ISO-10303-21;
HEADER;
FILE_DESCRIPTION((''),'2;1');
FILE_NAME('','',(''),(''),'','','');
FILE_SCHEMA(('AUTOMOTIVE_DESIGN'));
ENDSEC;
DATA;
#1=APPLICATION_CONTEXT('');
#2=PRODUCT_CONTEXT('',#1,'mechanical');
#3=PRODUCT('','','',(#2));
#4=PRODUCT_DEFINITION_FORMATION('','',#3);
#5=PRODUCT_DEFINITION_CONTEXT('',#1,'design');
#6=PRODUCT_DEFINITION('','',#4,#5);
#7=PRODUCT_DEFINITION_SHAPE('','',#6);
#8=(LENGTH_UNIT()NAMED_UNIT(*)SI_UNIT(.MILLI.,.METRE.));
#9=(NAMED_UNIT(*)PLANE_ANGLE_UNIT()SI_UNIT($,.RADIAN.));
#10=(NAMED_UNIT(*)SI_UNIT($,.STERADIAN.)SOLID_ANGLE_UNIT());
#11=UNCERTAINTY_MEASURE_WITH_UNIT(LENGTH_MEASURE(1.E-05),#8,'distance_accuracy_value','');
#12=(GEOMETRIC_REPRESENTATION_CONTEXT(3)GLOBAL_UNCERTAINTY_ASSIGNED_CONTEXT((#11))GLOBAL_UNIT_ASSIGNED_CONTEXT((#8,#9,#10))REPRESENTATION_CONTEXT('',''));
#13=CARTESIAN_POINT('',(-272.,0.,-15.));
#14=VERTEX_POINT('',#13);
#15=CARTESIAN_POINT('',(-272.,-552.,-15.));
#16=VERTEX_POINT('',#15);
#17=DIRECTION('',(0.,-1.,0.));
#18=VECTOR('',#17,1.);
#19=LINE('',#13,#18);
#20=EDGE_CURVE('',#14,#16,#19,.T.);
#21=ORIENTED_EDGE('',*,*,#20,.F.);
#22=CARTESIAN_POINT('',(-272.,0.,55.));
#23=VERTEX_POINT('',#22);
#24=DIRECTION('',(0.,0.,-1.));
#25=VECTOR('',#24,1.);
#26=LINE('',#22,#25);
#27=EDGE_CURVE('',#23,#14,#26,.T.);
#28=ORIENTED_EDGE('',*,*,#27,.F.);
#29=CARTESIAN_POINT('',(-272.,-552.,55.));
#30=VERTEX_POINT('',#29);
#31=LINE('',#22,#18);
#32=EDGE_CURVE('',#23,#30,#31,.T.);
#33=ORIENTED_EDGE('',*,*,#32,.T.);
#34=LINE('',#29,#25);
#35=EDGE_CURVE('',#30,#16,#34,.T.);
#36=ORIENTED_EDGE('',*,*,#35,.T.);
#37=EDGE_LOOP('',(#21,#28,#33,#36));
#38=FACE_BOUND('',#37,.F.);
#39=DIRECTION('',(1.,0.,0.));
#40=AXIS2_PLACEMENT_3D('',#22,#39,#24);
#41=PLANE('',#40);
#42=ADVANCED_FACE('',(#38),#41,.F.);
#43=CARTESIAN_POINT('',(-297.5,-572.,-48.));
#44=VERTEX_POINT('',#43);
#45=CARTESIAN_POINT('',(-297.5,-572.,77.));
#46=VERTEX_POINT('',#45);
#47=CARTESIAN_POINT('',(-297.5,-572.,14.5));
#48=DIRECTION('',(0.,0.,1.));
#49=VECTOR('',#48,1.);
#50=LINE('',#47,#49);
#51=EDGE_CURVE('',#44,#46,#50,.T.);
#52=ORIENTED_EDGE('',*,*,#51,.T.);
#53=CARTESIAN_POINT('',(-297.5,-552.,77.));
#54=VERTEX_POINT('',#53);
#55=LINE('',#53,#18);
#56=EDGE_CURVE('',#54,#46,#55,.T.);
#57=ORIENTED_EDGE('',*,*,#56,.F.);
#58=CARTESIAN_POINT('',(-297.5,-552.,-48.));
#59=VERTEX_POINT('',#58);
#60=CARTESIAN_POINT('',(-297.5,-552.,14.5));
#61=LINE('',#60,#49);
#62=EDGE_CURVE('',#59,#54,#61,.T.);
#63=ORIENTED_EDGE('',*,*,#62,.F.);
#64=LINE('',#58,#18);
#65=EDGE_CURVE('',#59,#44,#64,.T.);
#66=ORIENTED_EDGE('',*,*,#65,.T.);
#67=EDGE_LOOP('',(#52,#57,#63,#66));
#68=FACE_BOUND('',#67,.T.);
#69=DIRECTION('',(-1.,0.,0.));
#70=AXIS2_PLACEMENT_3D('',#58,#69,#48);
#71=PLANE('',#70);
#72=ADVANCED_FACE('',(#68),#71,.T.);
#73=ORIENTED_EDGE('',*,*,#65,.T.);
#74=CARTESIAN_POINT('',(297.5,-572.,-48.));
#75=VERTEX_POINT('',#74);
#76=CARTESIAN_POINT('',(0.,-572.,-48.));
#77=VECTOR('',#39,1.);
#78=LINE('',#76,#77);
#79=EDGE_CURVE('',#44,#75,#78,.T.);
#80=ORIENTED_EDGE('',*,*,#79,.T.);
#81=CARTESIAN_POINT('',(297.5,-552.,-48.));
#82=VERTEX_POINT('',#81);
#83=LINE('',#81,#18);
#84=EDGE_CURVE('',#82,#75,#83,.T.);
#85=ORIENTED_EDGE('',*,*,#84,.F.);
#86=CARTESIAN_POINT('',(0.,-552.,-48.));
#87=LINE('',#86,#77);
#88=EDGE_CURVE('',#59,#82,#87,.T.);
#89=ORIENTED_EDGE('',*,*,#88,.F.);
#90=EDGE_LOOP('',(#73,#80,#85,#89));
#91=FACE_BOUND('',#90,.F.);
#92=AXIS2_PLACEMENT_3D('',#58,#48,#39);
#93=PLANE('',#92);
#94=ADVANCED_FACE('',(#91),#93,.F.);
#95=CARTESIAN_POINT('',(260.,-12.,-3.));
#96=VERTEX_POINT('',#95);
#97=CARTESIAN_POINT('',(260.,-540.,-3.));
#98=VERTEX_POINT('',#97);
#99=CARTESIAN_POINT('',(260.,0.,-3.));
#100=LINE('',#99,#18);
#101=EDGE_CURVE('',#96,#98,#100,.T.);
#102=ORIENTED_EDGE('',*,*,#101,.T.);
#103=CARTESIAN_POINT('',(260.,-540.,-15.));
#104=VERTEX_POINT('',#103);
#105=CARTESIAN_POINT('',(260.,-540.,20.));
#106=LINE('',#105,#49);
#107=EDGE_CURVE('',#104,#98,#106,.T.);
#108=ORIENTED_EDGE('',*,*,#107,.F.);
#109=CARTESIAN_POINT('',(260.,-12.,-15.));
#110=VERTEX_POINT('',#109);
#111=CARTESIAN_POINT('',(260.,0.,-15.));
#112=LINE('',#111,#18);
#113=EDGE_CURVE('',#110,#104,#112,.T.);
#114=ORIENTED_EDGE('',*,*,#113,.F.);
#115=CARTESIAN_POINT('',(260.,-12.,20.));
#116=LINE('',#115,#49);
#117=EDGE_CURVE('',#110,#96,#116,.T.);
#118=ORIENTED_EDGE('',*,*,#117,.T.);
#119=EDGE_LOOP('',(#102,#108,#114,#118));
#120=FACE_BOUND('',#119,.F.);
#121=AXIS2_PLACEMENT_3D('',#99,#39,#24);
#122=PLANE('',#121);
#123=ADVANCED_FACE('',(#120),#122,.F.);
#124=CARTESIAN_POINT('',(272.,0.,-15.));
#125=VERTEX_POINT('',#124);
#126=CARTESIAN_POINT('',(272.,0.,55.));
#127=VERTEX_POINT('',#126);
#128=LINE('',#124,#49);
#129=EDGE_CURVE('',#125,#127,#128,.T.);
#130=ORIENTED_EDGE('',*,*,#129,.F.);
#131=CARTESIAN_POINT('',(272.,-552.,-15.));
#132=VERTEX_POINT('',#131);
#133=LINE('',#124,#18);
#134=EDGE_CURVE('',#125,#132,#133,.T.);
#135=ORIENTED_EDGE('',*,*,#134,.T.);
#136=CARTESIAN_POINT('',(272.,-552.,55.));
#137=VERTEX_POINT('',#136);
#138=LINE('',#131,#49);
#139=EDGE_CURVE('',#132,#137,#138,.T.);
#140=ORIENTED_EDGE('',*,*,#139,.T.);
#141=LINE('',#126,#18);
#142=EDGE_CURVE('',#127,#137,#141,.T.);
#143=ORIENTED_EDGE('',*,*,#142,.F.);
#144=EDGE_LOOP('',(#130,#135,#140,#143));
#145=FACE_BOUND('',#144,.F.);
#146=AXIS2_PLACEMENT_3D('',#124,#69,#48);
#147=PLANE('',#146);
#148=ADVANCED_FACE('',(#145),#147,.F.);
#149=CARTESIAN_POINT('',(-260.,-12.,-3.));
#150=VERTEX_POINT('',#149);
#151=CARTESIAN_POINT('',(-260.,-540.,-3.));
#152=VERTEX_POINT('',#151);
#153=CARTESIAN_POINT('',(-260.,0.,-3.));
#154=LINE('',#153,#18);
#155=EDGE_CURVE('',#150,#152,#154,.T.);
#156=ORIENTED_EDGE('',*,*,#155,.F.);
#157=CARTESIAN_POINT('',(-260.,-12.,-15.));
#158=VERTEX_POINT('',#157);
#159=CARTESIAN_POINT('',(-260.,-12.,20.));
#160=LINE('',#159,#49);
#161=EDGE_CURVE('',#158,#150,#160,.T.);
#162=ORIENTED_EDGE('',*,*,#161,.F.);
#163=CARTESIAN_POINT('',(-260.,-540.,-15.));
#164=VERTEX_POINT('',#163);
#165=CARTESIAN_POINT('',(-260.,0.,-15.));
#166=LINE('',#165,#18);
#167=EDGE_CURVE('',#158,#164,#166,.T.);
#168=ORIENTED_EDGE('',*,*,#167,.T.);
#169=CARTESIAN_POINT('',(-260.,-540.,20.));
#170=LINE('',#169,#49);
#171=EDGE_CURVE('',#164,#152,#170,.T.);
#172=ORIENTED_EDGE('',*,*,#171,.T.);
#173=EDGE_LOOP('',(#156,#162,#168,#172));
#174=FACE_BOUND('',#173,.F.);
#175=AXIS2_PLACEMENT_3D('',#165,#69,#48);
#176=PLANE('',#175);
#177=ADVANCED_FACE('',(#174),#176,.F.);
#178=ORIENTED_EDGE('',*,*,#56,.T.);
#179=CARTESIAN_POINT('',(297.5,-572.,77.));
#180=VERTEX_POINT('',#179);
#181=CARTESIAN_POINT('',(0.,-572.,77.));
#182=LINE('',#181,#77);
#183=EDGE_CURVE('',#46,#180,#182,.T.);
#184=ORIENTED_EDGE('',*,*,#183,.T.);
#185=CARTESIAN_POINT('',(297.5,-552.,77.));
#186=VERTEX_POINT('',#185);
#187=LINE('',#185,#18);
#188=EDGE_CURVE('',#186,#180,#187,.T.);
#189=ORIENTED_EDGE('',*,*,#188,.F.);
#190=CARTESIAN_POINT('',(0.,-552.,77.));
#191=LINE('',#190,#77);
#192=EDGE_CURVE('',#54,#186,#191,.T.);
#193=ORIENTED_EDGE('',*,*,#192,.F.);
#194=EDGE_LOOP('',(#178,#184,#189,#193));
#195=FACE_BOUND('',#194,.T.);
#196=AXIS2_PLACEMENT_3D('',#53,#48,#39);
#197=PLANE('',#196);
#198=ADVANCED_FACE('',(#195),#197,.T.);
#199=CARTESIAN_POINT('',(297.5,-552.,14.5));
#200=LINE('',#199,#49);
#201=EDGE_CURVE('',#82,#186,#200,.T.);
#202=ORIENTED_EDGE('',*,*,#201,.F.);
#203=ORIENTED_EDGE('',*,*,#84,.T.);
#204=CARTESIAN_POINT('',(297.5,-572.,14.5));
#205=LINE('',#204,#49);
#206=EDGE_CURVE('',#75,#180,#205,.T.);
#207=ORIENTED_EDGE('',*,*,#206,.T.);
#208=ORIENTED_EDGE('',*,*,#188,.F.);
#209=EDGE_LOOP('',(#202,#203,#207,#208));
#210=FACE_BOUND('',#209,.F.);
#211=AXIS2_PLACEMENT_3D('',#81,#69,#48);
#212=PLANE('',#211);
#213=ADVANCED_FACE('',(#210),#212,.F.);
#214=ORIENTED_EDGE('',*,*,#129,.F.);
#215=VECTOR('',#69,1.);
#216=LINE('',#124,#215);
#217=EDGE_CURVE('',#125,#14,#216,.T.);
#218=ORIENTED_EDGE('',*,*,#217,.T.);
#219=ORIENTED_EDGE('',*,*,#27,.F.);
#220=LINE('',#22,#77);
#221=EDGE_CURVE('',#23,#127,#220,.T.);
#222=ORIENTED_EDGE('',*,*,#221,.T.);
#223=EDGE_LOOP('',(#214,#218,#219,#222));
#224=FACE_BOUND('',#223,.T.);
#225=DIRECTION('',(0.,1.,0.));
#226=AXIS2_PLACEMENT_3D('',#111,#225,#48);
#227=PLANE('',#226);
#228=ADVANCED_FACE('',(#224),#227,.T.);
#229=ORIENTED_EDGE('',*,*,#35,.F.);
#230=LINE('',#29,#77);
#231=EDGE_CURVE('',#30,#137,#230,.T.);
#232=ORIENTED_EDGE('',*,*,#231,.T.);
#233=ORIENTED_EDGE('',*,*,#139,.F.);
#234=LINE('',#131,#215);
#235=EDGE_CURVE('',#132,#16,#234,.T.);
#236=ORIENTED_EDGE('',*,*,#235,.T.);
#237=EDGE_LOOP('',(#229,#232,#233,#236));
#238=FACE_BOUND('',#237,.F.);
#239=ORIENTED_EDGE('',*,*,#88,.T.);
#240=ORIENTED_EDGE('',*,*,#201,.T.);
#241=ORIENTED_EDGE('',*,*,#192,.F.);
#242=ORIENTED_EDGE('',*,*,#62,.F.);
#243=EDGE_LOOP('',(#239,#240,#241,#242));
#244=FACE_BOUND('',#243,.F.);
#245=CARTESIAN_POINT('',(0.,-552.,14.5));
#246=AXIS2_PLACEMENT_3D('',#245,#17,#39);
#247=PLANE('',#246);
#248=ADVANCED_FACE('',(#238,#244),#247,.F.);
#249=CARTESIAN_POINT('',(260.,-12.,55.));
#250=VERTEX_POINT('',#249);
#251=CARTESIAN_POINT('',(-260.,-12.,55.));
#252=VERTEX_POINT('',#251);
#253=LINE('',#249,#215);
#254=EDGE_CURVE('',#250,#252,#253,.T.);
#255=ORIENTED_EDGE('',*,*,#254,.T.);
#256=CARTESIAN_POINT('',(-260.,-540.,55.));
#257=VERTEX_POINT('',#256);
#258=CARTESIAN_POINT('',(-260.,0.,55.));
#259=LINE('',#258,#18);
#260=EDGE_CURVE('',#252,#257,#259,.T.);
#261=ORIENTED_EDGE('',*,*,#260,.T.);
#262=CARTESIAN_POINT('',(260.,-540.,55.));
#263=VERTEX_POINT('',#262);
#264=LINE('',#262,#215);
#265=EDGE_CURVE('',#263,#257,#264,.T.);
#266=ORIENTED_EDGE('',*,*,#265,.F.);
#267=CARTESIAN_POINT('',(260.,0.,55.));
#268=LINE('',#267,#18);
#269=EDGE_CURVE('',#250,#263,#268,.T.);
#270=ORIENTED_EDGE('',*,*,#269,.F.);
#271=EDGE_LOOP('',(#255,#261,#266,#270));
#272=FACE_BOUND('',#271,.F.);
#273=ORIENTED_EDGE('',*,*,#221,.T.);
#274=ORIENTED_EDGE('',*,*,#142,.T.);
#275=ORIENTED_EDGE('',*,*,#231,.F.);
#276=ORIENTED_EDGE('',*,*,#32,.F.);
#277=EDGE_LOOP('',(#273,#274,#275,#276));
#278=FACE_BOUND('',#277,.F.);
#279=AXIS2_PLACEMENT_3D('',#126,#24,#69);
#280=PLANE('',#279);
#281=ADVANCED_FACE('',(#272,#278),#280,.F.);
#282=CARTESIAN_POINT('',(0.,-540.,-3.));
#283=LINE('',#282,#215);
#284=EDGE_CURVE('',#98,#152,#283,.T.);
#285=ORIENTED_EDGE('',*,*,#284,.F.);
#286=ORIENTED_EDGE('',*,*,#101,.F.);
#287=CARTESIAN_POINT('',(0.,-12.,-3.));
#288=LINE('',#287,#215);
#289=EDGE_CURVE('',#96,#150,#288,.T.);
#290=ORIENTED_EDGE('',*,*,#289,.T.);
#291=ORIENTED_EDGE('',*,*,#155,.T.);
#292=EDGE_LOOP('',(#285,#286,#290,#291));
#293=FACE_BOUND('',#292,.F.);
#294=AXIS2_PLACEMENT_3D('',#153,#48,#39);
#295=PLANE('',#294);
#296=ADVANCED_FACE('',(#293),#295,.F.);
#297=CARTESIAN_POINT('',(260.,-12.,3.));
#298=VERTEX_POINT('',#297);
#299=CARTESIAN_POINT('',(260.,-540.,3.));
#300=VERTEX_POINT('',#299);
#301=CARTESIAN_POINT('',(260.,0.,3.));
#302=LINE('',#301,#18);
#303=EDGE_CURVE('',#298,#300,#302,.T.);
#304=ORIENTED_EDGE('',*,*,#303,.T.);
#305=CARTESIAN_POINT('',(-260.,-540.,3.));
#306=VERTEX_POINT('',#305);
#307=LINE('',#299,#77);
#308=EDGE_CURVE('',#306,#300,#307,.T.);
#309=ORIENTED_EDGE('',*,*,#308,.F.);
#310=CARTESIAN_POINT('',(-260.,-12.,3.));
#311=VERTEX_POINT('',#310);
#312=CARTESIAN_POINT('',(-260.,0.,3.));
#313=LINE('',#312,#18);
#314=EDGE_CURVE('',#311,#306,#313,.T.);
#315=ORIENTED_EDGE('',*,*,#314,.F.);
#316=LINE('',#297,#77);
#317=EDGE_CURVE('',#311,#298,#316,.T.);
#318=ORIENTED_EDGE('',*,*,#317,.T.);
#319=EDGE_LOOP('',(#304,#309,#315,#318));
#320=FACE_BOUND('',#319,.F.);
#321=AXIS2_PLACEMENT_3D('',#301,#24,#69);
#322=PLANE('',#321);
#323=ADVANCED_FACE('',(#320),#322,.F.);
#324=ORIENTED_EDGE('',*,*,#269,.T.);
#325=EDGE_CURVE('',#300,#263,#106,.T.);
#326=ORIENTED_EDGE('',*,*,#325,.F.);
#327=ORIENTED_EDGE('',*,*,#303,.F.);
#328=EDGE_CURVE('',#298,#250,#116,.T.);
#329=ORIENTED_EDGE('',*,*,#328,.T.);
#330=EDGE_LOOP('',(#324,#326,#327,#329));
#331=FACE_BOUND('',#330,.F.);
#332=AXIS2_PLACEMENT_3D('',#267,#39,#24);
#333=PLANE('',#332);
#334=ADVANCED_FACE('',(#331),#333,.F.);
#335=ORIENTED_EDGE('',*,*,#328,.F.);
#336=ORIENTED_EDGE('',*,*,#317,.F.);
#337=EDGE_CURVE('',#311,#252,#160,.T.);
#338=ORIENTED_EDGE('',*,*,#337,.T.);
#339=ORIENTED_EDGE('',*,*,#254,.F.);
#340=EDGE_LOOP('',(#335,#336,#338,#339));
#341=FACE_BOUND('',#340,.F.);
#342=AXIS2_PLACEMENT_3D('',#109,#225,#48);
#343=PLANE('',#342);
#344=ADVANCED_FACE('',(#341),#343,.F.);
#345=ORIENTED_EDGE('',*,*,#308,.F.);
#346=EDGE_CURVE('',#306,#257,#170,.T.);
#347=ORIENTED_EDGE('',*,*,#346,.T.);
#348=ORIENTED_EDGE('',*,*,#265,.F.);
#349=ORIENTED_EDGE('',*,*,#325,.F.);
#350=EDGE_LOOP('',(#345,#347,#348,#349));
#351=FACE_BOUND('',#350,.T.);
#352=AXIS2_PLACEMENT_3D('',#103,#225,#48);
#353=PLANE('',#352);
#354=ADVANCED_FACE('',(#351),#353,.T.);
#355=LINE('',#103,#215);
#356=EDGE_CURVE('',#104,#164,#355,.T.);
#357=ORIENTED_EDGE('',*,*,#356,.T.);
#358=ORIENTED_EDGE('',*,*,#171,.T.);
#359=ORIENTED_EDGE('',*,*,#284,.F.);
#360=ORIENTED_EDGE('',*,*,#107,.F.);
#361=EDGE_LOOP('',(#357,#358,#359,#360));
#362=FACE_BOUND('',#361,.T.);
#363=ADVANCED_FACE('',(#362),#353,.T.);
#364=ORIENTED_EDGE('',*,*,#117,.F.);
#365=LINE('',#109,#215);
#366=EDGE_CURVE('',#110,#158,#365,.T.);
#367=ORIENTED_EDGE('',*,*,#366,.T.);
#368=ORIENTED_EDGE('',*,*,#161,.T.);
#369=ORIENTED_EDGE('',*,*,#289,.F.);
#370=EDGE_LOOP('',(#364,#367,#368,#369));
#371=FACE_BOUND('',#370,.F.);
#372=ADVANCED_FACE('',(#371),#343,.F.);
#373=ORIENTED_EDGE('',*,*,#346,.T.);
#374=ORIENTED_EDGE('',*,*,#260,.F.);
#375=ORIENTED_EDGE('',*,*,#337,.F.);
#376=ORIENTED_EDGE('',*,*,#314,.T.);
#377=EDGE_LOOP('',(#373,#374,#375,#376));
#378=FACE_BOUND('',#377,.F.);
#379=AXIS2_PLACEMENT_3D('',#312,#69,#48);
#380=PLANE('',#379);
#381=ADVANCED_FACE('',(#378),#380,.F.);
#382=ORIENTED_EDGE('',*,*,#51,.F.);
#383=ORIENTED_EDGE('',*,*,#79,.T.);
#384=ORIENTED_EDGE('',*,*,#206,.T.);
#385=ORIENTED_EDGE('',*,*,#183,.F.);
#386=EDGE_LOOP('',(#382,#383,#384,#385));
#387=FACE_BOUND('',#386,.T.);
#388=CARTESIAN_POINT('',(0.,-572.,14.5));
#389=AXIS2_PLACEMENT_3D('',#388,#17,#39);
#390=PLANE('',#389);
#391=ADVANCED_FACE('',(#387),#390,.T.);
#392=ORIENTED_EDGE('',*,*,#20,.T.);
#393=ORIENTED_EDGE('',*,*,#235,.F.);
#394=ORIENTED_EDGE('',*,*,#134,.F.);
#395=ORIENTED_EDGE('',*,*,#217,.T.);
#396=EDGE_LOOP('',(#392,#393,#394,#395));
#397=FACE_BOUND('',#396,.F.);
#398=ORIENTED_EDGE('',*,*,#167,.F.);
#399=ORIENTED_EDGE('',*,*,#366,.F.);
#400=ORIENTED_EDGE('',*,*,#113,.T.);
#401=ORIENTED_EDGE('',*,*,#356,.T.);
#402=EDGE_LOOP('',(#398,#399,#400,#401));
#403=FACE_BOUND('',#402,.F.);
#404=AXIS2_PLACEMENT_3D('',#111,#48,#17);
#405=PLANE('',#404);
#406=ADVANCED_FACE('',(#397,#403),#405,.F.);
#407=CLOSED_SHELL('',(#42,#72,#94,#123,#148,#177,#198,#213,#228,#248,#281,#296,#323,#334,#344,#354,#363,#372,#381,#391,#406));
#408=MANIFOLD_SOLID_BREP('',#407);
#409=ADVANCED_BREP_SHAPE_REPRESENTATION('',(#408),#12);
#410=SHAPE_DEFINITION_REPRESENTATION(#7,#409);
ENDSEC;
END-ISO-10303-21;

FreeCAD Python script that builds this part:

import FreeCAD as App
import Part
import Sketcher
from FreeCAD import Vector
Q = App.Units.Quantity

doc = App.newDocument("Part")
body = doc.addObject("PartDesign::Body", "Body")

sketch1 = doc.addObject("Sketcher::SketchObject", "Sketch")
body.addObject(sketch1)
sketch1.AttachmentSupport = (doc.XZ_Plane, [""])
sketch1.MapMode = "FlatFace"
sketch1.addGeometry([
    Part.LineSegment(Vector(260, 55, 0), Vector(260, 3, 0)),
    Part.LineSegment(Vector(260, 3, 0), Vector(-260, 3, 0)),
    Part.LineSegment(Vector(-260, 3, 0), Vector(-260, 55, 0)),
    Part.LineSegment(Vector(-260, 55, 0), Vector(-272, 55, 0)),
    Part.LineSegment(Vector(-272, 55, 0), Vector(-272, -15, 0)),
    Part.LineSegment(Vector(-272, -15, 0), Vector(-260, -15, 0)),
    Part.LineSegment(Vector(-260, -15, 0), Vector(-260, -3, 0)),
    Part.LineSegment(Vector(-260, -3, 0), Vector(260, -3, 0)),
    Part.LineSegment(Vector(260, -3, 0), Vector(260, -15, 0)),
    Part.LineSegment(Vector(260, -15, 0), Vector(272, -15, 0)),
    Part.LineSegment(Vector(272, -15, 0), Vector(272, 55, 0)),
    Part.LineSegment(Vector(272, 55, 0), Vector(260, 55, 0)),
], False)
sketch1.addConstraint([
    Sketcher.Constraint("Coincident", 0, 2, 1, 1),
    Sketcher.Constraint("Coincident", 1, 2, 2, 1),
    Sketcher.Constraint("Coincident", 2, 2, 3, 1),
    Sketcher.Constraint("Coincident", 3, 2, 4, 1),
    Sketcher.Constraint("Coincident", 4, 2, 5, 1),
    Sketcher.Constraint("Coincident", 5, 2, 6, 1),
    Sketcher.Constraint("Coincident", 6, 2, 7, 1),
    Sketcher.Constraint("Coincident", 7, 2, 8, 1),
    Sketcher.Constraint("Coincident", 8, 2, 9, 1),
    Sketcher.Constraint("Coincident", 9, 2, 10, 1),
    Sketcher.Constraint("Coincident", 10, 2, 11, 1),
    Sketcher.Constraint("Coincident", 11, 2, 0, 1),
    Sketcher.Constraint("Vertical", 0),
    Sketcher.Constraint("Horizontal", 1),
    Sketcher.Constraint("Vertical", 2),
    Sketcher.Constraint("Horizontal", 3),
    Sketcher.Constraint("Vertical", 4),
    Sketcher.Constraint("Horizontal", 5),
    Sketcher.Constraint("Vertical", 6),
    Sketcher.Constraint("Horizontal", 7),
    Sketcher.Constraint("Vertical", 8),
    Sketcher.Constraint("Horizontal", 9),
    Sketcher.Constraint("Vertical", 10),
    Sketcher.Constraint("Horizontal", 11),
    Sketcher.Constraint("Symmetric", 0, 2, 6, 2, -1, 1),
    Sketcher.Constraint("Symmetric", 5, 2, 8, 2, -2),
    Sketcher.Constraint("Symmetric", 3, 2, 10, 2, -2),
    Sketcher.Constraint("Vertical", 2, 2, 5, 2),
    Sketcher.Constraint("Equal", 11, 6),
    Sketcher.Constraint("DistanceX", 1, 2, 1, 1, Q("520 mm")),
    Sketcher.Constraint("DistanceX", 3, 2, 3, 1, Q("12 mm")),
    Sketcher.Constraint("DistanceY", 0, 2, 0, 1, Q("52 mm")),
    Sketcher.Constraint("DistanceY", 4, 2, 4, 1, Q("70 mm")),
])
pad1 = doc.addObject("PartDesign::Pad", "Pad")
body.addObject(pad1)
pad1.Profile = sketch1
pad1.Length = 552

sketch2 = doc.addObject("Sketcher::SketchObject", "Sketch001")
body.addObject(sketch2)
sketch2.AttachmentSupport = (doc.YZ_Plane, [""])
sketch2.MapMode = "FlatFace"
sketch2.AttachmentOffset = App.Placement(Vector(0, 0, 260), App.Rotation())
sketch2.addGeometry([
    Part.LineSegment(Vector(0, 55, 0), Vector(0, -15, 0)),
    Part.LineSegment(Vector(0, -15, 0), Vector(-12, -15, 0)),
    Part.LineSegment(Vector(-12, -15, 0), Vector(-12, 55, 0)),
    Part.LineSegment(Vector(-12, 55, 0), Vector(0, 55, 0)),
    Part.LineSegment(Vector(-540, 55, 0), Vector(-540, -15, 0)),
    Part.LineSegment(Vector(-540, -15, 0), Vector(-552, -15, 0)),
    Part.LineSegment(Vector(-552, -15, 0), Vector(-552, 55, 0)),
    Part.LineSegment(Vector(-552, 55, 0), Vector(-540, 55, 0)),
], False)
sketch2.addConstraint([
    Sketcher.Constraint("Coincident", 0, 2, 1, 1),
    Sketcher.Constraint("Coincident", 1, 2, 2, 1),
    Sketcher.Constraint("Coincident", 2, 2, 3, 1),
    Sketcher.Constraint("Coincident", 3, 2, 0, 1),
    Sketcher.Constraint("Coincident", 4, 2, 5, 1),
    Sketcher.Constraint("Coincident", 5, 2, 6, 1),
    Sketcher.Constraint("Coincident", 6, 2, 7, 1),
    Sketcher.Constraint("Coincident", 7, 2, 4, 1),
    Sketcher.Constraint("Vertical", 0),
    Sketcher.Constraint("Horizontal", 1),
    Sketcher.Constraint("Vertical", 2),
    Sketcher.Constraint("Horizontal", 3),
    Sketcher.Constraint("Vertical", 4),
    Sketcher.Constraint("Horizontal", 5),
    Sketcher.Constraint("Vertical", 6),
    Sketcher.Constraint("Horizontal", 7),
    Sketcher.Constraint("PointOnObject", 0, 2, -2),
    Sketcher.Constraint("Horizontal", 1, 2, 4, 2),
    Sketcher.Constraint("Horizontal", 3, 2, 6, 2),
    Sketcher.Constraint("Equal", 3, 5),
    Sketcher.Constraint("DistanceX", 1, 2, 1, 1, Q("12 mm")),
    Sketcher.Constraint("DistanceY", 0, 2, 0, 1, Q("70 mm")),
    Sketcher.Constraint("DistanceY", 0, 2, -1, 1, Q("15 mm")),
    Sketcher.Constraint("DistanceX", 4, 2, -1, 1, Q("540 mm")),
])
pad2 = doc.addObject("PartDesign::Pad", "Pad001")
body.addObject(pad2)
pad2.Profile = sketch2
pad2.Length = 520
pad2.Reversed = True

sketch3 = doc.addObject("Sketcher::SketchObject", "Sketch002")
body.addObject(sketch3)
sketch3.AttachmentSupport = (doc.XZ_Plane, [""])
sketch3.MapMode = "FlatFace"
sketch3.AttachmentOffset = App.Placement(Vector(0, 0, 552), App.Rotation())
sketch3.addGeometry([
    Part.LineSegment(Vector(-298, 77, 0), Vector(-298, -48, 0)),
    Part.LineSegment(Vector(-298, -48, 0), Vector(298, -48, 0)),
    Part.LineSegment(Vector(298, -48, 0), Vector(298, 77, 0)),
    Part.LineSegment(Vector(298, 77, 0), Vector(-298, 77, 0)),
], False)
sketch3.addConstraint([
    Sketcher.Constraint("Coincident", 0, 2, 1, 1),
    Sketcher.Constraint("Coincident", 1, 2, 2, 1),
    Sketcher.Constraint("Coincident", 2, 2, 3, 1),
    Sketcher.Constraint("Coincident", 3, 2, 0, 1),
    Sketcher.Constraint("Vertical", 0),
    Sketcher.Constraint("Horizontal", 1),
    Sketcher.Constraint("Vertical", 2),
    Sketcher.Constraint("Horizontal", 3),
    Sketcher.Constraint("DistanceX", 1, 1, 1, 2, Q("595 mm")),
    Sketcher.Constraint("DistanceY", 0, 2, 0, 1, Q("125 mm")),
    Sketcher.Constraint("DistanceY", 0, 2, -1, 1, Q("48 mm")),
    Sketcher.Constraint("DistanceX", 0, 2, -1, 1, Q("297.5 mm")),
])
pad3 = doc.addObject("PartDesign::Pad", "Pad002")
body.addObject(pad3)
pad3.Profile = sketch3
pad3.Length = 20

doc.recompute()
